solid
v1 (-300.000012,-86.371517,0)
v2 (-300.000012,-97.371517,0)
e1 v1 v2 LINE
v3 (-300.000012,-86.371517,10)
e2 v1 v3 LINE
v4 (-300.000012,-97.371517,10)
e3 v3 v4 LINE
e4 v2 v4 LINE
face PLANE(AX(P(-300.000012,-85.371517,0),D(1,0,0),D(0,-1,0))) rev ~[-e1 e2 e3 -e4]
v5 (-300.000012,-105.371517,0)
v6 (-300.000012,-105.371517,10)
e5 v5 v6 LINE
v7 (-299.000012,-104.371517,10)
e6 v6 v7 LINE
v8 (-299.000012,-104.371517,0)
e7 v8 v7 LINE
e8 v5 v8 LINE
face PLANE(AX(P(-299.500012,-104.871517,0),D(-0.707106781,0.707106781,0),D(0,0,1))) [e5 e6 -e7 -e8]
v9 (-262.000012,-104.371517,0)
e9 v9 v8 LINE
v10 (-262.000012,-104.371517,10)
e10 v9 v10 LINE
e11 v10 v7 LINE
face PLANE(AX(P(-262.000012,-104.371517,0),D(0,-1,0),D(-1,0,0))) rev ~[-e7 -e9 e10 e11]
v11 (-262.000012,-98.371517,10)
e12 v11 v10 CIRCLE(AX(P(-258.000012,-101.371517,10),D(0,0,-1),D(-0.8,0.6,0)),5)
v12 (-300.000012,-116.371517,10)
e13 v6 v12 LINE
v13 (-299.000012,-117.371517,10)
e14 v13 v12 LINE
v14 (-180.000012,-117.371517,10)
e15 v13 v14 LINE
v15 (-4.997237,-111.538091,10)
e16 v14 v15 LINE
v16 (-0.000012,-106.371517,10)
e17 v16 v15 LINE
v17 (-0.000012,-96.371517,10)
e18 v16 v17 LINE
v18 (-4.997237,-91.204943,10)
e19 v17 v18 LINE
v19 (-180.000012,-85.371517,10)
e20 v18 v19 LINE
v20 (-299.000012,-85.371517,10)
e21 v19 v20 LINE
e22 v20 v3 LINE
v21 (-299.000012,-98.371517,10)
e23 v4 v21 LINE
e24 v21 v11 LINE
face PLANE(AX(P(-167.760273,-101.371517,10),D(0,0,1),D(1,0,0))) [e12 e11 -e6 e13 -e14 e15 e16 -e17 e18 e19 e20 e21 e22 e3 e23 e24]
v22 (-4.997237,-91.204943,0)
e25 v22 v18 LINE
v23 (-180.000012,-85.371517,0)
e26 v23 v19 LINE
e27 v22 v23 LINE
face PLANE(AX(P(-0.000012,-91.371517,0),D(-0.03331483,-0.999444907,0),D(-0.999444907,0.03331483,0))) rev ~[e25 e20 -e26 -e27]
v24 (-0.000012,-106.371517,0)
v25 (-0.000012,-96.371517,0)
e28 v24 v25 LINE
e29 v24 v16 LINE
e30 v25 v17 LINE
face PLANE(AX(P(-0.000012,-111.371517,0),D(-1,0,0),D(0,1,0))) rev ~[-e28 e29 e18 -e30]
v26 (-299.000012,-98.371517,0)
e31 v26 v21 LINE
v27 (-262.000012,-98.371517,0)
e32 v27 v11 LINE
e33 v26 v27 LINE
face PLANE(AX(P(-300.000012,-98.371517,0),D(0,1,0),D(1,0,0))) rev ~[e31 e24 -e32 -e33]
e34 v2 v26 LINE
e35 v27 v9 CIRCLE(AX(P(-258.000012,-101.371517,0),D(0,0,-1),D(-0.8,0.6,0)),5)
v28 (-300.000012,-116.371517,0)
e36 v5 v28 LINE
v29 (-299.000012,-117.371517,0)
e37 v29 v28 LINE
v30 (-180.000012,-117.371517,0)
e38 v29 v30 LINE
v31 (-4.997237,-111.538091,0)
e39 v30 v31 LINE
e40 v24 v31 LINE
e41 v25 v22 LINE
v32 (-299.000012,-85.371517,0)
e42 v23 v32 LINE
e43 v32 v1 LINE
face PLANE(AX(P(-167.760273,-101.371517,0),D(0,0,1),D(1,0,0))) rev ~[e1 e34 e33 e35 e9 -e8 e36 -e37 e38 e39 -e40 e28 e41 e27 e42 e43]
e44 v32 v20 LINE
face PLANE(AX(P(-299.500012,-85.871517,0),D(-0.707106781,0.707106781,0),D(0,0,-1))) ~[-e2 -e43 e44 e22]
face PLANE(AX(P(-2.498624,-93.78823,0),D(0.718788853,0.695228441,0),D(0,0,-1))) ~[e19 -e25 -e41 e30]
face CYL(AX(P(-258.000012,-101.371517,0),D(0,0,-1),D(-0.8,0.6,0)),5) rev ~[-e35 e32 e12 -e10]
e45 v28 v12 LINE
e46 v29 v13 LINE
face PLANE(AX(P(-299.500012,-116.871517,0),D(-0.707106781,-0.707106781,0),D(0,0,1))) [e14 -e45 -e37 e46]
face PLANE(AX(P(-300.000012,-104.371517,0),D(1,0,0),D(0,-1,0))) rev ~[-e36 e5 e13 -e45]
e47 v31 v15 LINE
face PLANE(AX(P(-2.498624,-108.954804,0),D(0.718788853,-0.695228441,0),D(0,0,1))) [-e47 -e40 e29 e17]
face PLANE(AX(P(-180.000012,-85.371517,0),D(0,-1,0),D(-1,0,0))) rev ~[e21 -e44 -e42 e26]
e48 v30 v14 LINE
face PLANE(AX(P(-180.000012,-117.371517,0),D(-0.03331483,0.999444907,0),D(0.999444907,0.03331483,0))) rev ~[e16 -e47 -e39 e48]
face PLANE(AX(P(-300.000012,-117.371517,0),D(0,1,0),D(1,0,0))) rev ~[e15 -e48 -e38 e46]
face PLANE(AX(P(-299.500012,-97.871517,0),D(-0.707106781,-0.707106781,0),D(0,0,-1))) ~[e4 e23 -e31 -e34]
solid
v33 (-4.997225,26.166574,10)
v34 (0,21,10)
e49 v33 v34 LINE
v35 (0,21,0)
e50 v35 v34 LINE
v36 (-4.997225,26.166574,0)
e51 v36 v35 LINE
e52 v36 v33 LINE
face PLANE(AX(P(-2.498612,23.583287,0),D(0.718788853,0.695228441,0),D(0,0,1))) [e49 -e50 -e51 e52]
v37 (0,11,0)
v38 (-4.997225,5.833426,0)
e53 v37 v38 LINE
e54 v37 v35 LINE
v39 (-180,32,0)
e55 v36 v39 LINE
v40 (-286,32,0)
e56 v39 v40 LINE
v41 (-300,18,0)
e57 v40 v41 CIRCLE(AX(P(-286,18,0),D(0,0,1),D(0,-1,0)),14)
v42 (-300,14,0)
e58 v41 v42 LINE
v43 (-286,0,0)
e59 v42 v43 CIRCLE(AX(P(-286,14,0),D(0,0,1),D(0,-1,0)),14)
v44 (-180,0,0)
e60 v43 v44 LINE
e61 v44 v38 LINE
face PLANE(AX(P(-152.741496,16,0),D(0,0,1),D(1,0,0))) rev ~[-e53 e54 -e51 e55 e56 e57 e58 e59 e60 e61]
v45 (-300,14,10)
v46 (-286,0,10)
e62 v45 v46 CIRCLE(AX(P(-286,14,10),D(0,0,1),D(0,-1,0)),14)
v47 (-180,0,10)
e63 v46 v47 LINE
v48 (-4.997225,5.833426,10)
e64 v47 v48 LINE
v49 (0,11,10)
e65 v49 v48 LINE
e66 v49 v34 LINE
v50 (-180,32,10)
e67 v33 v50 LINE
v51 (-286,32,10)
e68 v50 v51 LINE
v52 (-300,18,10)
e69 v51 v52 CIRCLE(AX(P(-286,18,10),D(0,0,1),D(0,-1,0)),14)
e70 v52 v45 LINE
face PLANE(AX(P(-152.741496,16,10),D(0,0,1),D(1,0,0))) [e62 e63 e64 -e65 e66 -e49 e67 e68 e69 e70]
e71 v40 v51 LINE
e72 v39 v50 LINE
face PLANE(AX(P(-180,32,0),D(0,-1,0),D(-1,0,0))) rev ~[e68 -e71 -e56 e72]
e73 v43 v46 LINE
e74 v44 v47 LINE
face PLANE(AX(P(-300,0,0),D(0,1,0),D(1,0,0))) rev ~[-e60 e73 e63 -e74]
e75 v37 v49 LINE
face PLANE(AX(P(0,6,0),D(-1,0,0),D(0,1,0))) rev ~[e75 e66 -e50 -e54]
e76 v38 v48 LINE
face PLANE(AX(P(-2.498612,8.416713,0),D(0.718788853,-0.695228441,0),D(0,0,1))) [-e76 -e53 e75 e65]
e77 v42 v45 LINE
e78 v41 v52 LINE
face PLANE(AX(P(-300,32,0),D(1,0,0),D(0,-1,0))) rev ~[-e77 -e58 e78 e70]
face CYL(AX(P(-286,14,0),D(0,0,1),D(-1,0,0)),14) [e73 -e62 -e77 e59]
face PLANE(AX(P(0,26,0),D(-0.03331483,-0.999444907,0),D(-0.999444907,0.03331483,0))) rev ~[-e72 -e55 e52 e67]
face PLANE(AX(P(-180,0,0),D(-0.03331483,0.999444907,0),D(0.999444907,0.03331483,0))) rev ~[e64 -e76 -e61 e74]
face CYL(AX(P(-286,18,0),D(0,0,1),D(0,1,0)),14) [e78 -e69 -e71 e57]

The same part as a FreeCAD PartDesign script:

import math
import FreeCAD as App
import Part
import Sketcher


def edges_at(feature, points):
    """Names of the edges that pass closest to the given points."""
    edges = feature.Shape.Edges
    near = lambda p: min(range(len(edges)), key=lambda i: edges[i].distToShape(Part.Vertex(*p))[0])
    return sorted({f"Edge{near(p) + 1}" for p in points})

doc = App.newDocument("Part")
body = doc.addObject("PartDesign::Body", "Body")
body.AllowCompound = True

# Sketch on XY plane
sketch1 = doc.addObject("Sketcher::SketchObject", "Sketch")
body.addObject(sketch1)
sketch1.AttachmentSupport = (doc.XY_Plane, [""])
sketch1.MapMode = "FlatFace"
sketch1.addGeometry(Part.LineSegment(App.Vector(-0.000012, -111.371517, 0), App.Vector(-0.000012, -91.371517, 0)), False)
sketch1.addGeometry(Part.LineSegment(App.Vector(-0.000012, -91.371517, 0), App.Vector(-180.000012, -85.371517, 0)), False)
sketch1.addGeometry(Part.LineSegment(App.Vector(-180.000012, -85.371517, 0), App.Vector(-300.000012, -85.371517, 0)), False)
sketch1.addGeometry(Part.LineSegment(App.Vector(-300.000012, -85.371517, 0), App.Vector(-300.000012, -98.371517, 0)), False)
sketch1.addGeometry(Part.LineSegment(App.Vector(-300.000012, -98.371517, 0), App.Vector(-262.000012, -98.371517, 0)), False)
sketch1.addGeometry(Part.ArcOfCircle(Part.Circle(App.Vector(-258.000012, -101.371517, 0), App.Vector(0, 0, 1), 5), math.radians(-143.130102), math.radians(143.130102)), False)
sketch1.addGeometry(Part.LineSegment(App.Vector(-262.000012, -104.371517, 0), App.Vector(-300.000012, -104.371517, 0)), False)
sketch1.addGeometry(Part.LineSegment(App.Vector(-300.000012, -104.371517, 0), App.Vector(-300.000012, -117.371517, 0)), False)
sketch1.addGeometry(Part.LineSegment(App.Vector(-300.000012, -117.371517, 0), App.Vector(-180.000012, -117.371517, 0)), False)
sketch1.addGeometry(Part.LineSegment(App.Vector(-180.000012, -117.371517, 0), App.Vector(-0.000012, -111.371517, 0)), False)
sketch1.addGeometry(Part.LineSegment(App.Vector(0, 6, 0), App.Vector(0, 26, 0)), False)
sketch1.addGeometry(Part.LineSegment(App.Vector(0, 26, 0), App.Vector(-180, 32, 0)), False)
sketch1.addGeometry(Part.LineSegment(App.Vector(-180, 32, 0), App.Vector(-300, 32, 0)), False)
sketch1.addGeometry(Part.LineSegment(App.Vector(-300, 32, 0), App.Vector(-300, 0, 0)), False)
sketch1.addGeometry(Part.LineSegment(App.Vector(-300, 0, 0), App.Vector(-180, 0, 0)), False)
sketch1.addGeometry(Part.LineSegment(App.Vector(-180, 0, 0), App.Vector(0, 6, 0)), False)
sketch1.addConstraint(Sketcher.Constraint("Coincident", 0, 2, 1, 1))
sketch1.addConstraint(Sketcher.Constraint("Coincident", 1, 2, 2, 1))
sketch1.addConstraint(Sketcher.Constraint("Coincident", 2, 2, 3, 1))
sketch1.addConstraint(Sketcher.Constraint("Coincident", 3, 2, 4, 1))
sketch1.addConstraint(Sketcher.Constraint("Coincident", 4, 2, 5, 2))
sketch1.addConstraint(Sketcher.Constraint("Coincident", 5, 1, 6, 1))
sketch1.addConstraint(Sketcher.Constraint("Coincident", 6, 2, 7, 1))
sketch1.addConstraint(Sketcher.Constraint("Coincident", 7, 2, 8, 1))
sketch1.addConstraint(Sketcher.Constraint("Coincident", 8, 2, 9, 1))
sketch1.addConstraint(Sketcher.Constraint("Coincident", 9, 2, 0, 1))
sketch1.addConstraint(Sketcher.Constraint("Coincident", 10, 2, 11, 1))
sketch1.addConstraint(Sketcher.Constraint("Coincident", 11, 2, 12, 1))
sketch1.addConstraint(Sketcher.Constraint("Coincident", 12, 2, 13, 1))
sketch1.addConstraint(Sketcher.Constraint("Coincident", 13, 2, 14, 1))
sketch1.addConstraint(Sketcher.Constraint("Coincident", 14, 2, 15, 1))
sketch1.addConstraint(Sketcher.Constraint("Coincident", 15, 2, 10, 1))
sketch1.addConstraint(Sketcher.Constraint("Vertical", 0))
sketch1.addConstraint(Sketcher.Constraint("Horizontal", 2))
sketch1.addConstraint(Sketcher.Constraint("Vertical", 3))
sketch1.addConstraint(Sketcher.Constraint("Horizontal", 4))
sketch1.addConstraint(Sketcher.Constraint("Horizontal", 6))
sketch1.addConstraint(Sketcher.Constraint("Vertical", 7))
sketch1.addConstraint(Sketcher.Constraint("Horizontal", 8))
sketch1.addConstraint(Sketcher.Constraint("Vertical", 10))
sketch1.addConstraint(Sketcher.Constraint("Horizontal", 12))
sketch1.addConstraint(Sketcher.Constraint("Vertical", 13))
sketch1.addConstraint(Sketcher.Constraint("Horizontal", 14))
sketch1.addConstraint(Sketcher.Constraint("PointOnObject", 10, 2, -2))
sketch1.addConstraint(Sketcher.Constraint("PointOnObject", 13, 2, -1))
sketch1.addConstraint(Sketcher.Constraint("Parallel", 1, 11))
sketch1.addConstraint(Sketcher.Constraint("Parallel", 9, 15))
sketch1.addConstraint(Sketcher.Constraint("Vertical", 4, 2, 5, 1))
sketch1.addConstraint(Sketcher.Constraint("Vertical", 3, 2, 6, 2))
sketch1.addConstraint(Sketcher.Constraint("Vertical", 1, 2, 8, 2))
sketch1.addConstraint(Sketcher.Constraint("Vertical", 11, 2, 14, 2))
sketch1.addConstraint(Sketcher.Constraint("Equal", 8, 12))
sketch1.addConstraint(Sketcher.Constraint("Equal", 3, 7))
sketch1.addConstraint(Sketcher.Constraint("Equal", 0, 10))
sketch1.addConstraint(Sketcher.Constraint("Equal", 1, 9))
sketch1.addConstraint(Sketcher.Constraint("Equal", 9, 11))
sketch1.addConstraint(Sketcher.Constraint("Radius", 5, 5.0))
sketch1.addConstraint(Sketcher.Constraint("DistanceX", 2, 2, 2, 1, 120.0))
sketch1.addConstraint(Sketcher.Constraint("DistanceX", 4, 1, 4, 2, 38.0))
sketch1.addConstraint(Sketcher.Constraint("DistanceY", 0, 1, 0, 2, 20.0))
sketch1.addConstraint(Sketcher.Constraint("DistanceY", 3, 2, 3, 1, 13.0))
sketch1.addConstraint(Sketcher.Constraint("DistanceY", 13, 2, 13, 1, 32.0))
sketch1.addConstraint(Sketcher.Constraint("DistanceX", 11, 2, -1, 1, 180.0))
sketch1.addConstraint(Sketcher.Constraint("DistanceX", 1, 2, -1, 1, 180.000012))
sketch1.addConstraint(Sketcher.Constraint("DistanceY", 5, 3, -1, 1, 101.371517))
pad1 = doc.addObject("PartDesign::Pad", "Pad")
body.addObject(pad1)
pad1.Profile = sketch1
pad1.Length = 10
doc.recompute()

fillet = doc.addObject("PartDesign::Fillet", "Fillet")
body.addObject(fillet)
fillet.Base = (pad1, edges_at(pad1, [(-300, 32, 5), (-300, 0, 5)]))
fillet.Radius = 14
doc.recompute()

chamfer = doc.addObject("PartDesign::Chamfer", "Chamfer")
body.addObject(chamfer)
chamfer.Base = (fillet, edges_at(fillet, [
    (0, 26, 5),
    (0, 6, 5),
    (0, -91.372, 5),
    (0, -111.372, 5),
]))
chamfer.Size = 5
doc.recompute()

chamfer2 = doc.addObject("PartDesign::Chamfer", "Chamfer001")
body.addObject(chamfer2)
chamfer2.Base = (chamfer, edges_at(chamfer, [
    (-300, -85.372, 5),
    (-300, -98.372, 5),
    (-300, -104.372, 5),
    (-300, -117.372, 5),
]))
chamfer2.Size = 1

doc.recompute()
